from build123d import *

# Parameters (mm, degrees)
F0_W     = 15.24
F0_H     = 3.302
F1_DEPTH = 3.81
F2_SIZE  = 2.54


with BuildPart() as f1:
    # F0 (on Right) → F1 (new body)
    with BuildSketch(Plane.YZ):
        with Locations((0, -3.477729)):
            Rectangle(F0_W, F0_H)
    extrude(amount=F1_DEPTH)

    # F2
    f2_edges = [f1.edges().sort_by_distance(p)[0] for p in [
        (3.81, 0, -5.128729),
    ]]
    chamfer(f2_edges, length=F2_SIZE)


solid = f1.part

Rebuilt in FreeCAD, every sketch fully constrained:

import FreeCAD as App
import Part
import Sketcher
from FreeCAD import Vector
Q = App.Units.Quantity


def edges_at(feature, points):
    """Names of the edges that pass closest to the given points."""
    edges = feature.Shape.Edges
    near = lambda p: min(range(len(edges)), key=lambda i: edges[i].distToShape(Part.Vertex(*p))[0])
    return sorted({f"Edge{near(p) + 1}" for p in points})


def add_polygon(sketch, points):
    """Adds a closed chain of lines whose ends are joined by coincident constraints."""
    first, n = sketch.GeometryCount, len(points)
    for a, b in zip(points, points[1:] + points[:1]):
        sketch.addGeometry(Part.LineSegment(App.Vector(*a, 0), App.Vector(*b, 0)), False)
    for i in range(n):
        sketch.addConstraint(Sketcher.Constraint("Coincident", first + i, 2, first + (i + 1) % n, 1))

doc = App.newDocument("Part")
params = doc.addObject("Spreadsheet::Sheet", "Params")
for row, (alias, value) in enumerate([
    ("sketch1_width", "0.6 in"),
    ("sketch1_height", "0.13 in"),
    ("pad1_length", "0.15 in"),
    ("chamfer_size", "0.1 in"),
], start=1):
    params.set(f"A{row}", alias)
    params.set(f"B{row}", "=" + value)
    params.setAlias(f"B{row}", alias)

body = doc.addObject("PartDesign::Body", "Body")

sketch1 = body.newObject("Sketcher::SketchObject", "Sketch")
sketch1.AttachmentSupport = (doc.getObject("YZ_Plane"), [""])
sketch1.MapMode = "FlatFace"
add_polygon(sketch1, [(-7.62, -1.826729), (-7.62, -5.128729), (7.62, -5.128729), (7.62, -1.826729)])
sketch1.addConstraint(Sketcher.Constraint("Vertical", 0))
sketch1.addConstraint(Sketcher.Constraint("Horizontal", 1))
sketch1.addConstraint(Sketcher.Constraint("Vertical", 2))
sketch1.addConstraint(Sketcher.Constraint("Horizontal", 3))
sketch1.addConstraint(Sketcher.Constraint("DistanceX", 1, 1, 1, 2, Q("0.6 in")))
sketch1.addConstraint(Sketcher.Constraint("DistanceY", 0, 2, 0, 1, Q("0.13 in")))
sketch1.addConstraint(Sketcher.Constraint("DistanceX", 0, 2, -1, 1, Q("0.3 in")))
sketch1.addConstraint(Sketcher.Constraint("DistanceY", 0, 2, -1, 1, Q("5.128729 mm")))
sketch1.setExpression("Constraints[8]", "Params.sketch1_width")
sketch1.setExpression("Constraints[9]", "Params.sketch1_height")
pad1 = body.newObject("PartDesign::Pad", "Pad")
pad1.Profile = sketch1
pad1.setExpression("Length", "Params.pad1_length")
doc.recompute()

chamfer = body.newObject("PartDesign::Chamfer", "Chamfer")
chamfer.Base = (pad1, edges_at(pad1, [(3.81, 0, -5.129)]))
chamfer.setExpression("Size", "Params.chamfer_size")

doc.recompute()
